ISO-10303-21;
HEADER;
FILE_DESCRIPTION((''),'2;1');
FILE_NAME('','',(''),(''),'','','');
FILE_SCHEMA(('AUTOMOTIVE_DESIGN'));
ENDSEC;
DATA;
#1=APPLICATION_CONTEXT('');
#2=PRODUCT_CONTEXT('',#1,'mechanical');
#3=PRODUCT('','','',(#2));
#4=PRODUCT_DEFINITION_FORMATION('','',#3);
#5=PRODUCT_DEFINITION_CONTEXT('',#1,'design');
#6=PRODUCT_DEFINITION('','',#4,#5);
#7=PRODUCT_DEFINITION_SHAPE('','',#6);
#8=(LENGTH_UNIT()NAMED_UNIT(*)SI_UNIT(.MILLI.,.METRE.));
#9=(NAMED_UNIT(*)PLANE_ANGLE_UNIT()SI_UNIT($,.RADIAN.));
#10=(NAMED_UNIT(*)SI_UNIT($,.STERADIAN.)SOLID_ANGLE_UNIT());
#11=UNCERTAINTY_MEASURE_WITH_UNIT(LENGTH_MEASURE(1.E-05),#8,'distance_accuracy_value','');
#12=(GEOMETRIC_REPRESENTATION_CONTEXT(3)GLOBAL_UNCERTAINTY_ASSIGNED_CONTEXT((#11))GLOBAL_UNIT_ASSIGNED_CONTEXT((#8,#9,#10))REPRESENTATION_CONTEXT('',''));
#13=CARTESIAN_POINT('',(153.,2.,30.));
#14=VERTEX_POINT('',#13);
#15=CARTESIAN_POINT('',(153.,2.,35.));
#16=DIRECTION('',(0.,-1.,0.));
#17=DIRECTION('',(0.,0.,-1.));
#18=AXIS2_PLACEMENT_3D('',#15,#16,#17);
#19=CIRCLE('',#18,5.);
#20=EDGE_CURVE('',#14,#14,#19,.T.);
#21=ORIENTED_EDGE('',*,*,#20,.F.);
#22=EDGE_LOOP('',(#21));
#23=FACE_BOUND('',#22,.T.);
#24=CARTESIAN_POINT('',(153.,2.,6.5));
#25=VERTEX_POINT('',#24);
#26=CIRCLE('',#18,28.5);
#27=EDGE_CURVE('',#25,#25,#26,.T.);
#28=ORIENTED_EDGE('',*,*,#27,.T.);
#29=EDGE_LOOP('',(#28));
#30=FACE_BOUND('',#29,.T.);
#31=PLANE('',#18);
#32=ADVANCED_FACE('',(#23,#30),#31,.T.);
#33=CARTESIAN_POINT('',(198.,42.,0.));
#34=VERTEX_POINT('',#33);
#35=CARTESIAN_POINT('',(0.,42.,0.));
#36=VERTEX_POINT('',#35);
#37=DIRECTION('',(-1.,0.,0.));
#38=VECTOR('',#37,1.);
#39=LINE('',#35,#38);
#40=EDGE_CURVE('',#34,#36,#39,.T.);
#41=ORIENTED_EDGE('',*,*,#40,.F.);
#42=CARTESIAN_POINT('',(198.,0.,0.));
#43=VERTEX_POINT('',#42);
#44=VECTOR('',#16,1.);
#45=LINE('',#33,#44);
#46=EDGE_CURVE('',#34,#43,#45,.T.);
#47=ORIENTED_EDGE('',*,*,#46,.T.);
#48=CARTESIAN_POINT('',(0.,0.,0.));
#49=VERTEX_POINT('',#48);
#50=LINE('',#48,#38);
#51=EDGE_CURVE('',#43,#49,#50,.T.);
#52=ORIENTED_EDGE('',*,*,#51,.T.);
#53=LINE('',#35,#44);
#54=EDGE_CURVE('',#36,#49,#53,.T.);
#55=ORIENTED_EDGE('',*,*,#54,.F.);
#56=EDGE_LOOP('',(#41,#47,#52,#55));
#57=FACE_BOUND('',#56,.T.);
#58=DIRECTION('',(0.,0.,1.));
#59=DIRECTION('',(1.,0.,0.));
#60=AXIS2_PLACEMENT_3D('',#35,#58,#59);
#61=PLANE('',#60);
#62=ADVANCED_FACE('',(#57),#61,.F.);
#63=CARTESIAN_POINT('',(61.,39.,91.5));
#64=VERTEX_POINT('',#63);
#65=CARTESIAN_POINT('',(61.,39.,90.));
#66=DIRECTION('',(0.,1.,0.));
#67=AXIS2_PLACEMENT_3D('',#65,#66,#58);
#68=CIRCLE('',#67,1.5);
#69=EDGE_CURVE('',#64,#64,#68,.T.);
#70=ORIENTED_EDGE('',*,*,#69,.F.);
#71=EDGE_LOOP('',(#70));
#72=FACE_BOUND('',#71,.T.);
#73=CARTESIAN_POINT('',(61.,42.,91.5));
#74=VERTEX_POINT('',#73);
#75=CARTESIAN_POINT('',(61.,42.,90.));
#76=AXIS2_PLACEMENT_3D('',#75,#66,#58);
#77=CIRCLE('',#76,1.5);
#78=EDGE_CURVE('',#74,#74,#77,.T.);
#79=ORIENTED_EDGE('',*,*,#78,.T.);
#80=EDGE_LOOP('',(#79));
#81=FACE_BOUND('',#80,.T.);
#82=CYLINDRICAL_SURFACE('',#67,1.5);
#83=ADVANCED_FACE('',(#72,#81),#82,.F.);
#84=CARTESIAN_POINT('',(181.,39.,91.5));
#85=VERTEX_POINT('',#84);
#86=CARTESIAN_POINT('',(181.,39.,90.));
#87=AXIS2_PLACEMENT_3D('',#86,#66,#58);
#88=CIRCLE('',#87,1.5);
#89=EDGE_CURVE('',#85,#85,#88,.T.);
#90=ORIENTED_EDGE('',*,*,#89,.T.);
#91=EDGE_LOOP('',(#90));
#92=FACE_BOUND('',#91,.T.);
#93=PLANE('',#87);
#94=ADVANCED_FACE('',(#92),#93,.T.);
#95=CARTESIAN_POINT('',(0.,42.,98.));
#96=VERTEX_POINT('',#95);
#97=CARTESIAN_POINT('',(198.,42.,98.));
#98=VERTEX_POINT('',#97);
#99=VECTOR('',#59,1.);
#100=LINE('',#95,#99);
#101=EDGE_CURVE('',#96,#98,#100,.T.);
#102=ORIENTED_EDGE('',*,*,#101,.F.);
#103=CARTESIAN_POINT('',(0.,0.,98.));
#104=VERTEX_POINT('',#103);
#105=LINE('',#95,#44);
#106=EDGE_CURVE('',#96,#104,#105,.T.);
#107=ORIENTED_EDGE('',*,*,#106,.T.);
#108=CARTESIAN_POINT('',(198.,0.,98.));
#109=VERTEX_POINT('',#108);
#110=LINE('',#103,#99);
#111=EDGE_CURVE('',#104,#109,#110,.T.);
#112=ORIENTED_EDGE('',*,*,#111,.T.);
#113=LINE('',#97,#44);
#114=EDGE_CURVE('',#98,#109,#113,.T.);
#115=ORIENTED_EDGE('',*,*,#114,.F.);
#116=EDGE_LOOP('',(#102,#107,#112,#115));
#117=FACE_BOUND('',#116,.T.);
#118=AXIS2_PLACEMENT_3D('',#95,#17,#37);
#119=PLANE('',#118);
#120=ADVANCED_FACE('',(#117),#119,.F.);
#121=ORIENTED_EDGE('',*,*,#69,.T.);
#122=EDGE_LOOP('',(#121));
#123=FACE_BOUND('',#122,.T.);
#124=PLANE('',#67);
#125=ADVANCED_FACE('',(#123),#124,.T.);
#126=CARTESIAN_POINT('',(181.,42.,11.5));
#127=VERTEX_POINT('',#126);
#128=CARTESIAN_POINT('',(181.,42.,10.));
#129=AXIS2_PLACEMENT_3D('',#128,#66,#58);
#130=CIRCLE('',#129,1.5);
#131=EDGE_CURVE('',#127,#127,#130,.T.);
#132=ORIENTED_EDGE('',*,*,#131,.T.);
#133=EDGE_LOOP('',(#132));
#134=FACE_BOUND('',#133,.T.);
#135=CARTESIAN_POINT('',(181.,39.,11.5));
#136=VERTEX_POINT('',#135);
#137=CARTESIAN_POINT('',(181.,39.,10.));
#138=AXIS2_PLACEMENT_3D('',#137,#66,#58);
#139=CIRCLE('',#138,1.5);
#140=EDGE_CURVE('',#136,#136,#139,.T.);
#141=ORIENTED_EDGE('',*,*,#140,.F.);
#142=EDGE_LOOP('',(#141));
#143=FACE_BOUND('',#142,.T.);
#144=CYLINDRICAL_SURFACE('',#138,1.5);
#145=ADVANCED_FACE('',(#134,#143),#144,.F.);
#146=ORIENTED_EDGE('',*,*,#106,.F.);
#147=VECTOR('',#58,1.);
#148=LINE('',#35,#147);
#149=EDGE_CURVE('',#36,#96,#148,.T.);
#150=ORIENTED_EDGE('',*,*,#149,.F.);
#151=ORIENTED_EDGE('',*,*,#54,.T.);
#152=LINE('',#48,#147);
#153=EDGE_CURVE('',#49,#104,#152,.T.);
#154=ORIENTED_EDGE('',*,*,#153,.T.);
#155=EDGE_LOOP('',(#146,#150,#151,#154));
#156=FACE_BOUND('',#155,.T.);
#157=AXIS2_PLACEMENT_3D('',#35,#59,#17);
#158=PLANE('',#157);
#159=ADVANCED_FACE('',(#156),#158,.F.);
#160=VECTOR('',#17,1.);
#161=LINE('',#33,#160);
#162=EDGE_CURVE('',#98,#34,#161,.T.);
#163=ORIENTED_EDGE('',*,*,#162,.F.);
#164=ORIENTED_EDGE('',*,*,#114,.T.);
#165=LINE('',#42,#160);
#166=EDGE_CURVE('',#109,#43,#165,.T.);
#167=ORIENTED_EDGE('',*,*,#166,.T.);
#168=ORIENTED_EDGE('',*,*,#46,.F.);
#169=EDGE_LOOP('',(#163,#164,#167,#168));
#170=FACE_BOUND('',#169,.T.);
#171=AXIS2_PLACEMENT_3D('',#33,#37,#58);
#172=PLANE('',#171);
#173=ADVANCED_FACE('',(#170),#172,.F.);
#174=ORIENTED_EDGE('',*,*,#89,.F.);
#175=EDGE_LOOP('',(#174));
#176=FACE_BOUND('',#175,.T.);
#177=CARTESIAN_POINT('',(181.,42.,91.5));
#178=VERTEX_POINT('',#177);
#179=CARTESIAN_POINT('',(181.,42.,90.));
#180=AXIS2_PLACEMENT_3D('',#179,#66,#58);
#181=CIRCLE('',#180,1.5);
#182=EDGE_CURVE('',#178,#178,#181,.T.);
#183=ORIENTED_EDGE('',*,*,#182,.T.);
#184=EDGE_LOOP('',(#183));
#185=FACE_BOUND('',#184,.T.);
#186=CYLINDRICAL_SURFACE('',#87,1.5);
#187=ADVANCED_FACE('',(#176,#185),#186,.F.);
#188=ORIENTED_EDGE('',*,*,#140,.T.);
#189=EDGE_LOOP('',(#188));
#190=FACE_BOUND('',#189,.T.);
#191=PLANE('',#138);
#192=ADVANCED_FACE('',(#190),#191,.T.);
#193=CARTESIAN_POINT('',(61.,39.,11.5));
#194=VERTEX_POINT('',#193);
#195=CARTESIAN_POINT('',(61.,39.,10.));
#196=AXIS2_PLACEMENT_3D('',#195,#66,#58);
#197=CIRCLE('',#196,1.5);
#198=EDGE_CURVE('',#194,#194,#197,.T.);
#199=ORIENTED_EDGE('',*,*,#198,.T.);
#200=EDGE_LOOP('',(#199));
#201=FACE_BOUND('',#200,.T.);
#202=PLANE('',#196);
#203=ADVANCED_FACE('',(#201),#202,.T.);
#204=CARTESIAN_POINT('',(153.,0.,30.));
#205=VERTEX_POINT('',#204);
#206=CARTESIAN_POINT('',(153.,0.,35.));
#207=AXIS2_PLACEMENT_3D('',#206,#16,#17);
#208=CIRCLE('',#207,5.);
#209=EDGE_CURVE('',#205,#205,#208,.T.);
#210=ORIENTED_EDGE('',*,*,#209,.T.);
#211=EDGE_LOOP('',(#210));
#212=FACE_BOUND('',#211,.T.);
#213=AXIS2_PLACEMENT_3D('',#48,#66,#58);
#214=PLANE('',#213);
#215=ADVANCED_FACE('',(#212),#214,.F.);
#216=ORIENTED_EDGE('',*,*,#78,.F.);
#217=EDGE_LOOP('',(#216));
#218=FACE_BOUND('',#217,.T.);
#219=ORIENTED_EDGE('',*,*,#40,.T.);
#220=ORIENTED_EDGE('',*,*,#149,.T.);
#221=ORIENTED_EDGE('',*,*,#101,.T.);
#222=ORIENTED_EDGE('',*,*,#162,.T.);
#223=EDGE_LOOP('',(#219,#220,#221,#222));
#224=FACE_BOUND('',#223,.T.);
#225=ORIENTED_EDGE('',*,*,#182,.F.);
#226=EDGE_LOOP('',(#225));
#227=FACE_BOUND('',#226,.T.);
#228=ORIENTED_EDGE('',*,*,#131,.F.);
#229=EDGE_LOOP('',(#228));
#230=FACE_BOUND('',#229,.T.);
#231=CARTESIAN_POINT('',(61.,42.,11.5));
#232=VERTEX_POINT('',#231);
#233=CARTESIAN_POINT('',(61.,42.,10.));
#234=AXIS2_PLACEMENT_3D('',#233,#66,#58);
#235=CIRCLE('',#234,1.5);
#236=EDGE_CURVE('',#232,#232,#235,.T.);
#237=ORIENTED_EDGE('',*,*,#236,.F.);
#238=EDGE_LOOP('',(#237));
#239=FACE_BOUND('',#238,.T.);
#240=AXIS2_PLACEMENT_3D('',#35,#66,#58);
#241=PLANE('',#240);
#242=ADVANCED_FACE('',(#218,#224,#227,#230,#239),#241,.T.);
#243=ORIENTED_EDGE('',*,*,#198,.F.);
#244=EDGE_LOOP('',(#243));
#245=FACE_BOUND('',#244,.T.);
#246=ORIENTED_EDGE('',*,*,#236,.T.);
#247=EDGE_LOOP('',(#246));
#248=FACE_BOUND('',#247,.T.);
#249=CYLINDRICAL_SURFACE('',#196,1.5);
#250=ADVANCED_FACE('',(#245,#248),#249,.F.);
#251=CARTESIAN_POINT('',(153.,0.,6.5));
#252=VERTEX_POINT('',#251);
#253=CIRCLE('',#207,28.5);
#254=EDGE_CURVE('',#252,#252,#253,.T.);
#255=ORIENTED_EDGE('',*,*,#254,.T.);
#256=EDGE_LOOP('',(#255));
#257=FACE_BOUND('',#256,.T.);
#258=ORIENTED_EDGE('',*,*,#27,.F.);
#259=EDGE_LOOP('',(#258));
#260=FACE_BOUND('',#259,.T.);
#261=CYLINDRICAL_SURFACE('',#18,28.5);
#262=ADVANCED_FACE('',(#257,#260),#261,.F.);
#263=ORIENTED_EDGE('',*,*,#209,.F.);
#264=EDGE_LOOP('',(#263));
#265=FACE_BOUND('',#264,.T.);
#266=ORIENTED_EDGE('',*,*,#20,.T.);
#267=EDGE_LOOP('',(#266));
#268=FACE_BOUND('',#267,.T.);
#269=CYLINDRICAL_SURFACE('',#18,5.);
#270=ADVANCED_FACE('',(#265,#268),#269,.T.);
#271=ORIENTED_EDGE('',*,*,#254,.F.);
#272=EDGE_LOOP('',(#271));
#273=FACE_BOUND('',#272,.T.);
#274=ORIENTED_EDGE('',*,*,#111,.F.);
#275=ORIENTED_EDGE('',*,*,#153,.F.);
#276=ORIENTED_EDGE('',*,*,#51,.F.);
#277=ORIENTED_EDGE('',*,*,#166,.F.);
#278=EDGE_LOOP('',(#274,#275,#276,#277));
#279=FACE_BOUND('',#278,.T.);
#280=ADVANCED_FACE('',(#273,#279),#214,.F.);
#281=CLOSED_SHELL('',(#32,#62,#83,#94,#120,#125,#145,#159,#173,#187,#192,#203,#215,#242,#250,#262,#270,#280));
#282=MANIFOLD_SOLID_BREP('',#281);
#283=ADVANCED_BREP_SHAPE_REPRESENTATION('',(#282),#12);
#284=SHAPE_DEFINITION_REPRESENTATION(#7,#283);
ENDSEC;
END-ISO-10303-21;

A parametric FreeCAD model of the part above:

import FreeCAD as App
import Part
import Sketcher


def add_polygon(sketch, points):
    """Adds a closed chain of lines whose ends are joined by coincident constraints."""
    first, n = sketch.GeometryCount, len(points)
    for a, b in zip(points, points[1:] + points[:1]):
        sketch.addGeometry(Part.LineSegment(App.Vector(*a, 0), App.Vector(*b, 0)), False)
    for i in range(n):
        sketch.addConstraint(Sketcher.Constraint("Coincident", first + i, 2, first + (i + 1) % n, 1))

doc = App.newDocument("Part")
body = doc.addObject("PartDesign::Body", "Body")

sketch1 = body.newObject("Sketcher::SketchObject", "Sketch")
sketch1.AttachmentSupport = (doc.getObject("XZ_Plane"), [""])
sketch1.MapMode = "FlatFace"
add_polygon(sketch1, [(0, 0), (0, 98), (198, 98), (198, 0)])
sketch1.addConstraint(Sketcher.Constraint("Vertical", 0))
sketch1.addConstraint(Sketcher.Constraint("Horizontal", 1))
sketch1.addConstraint(Sketcher.Constraint("Vertical", 2))
sketch1.addConstraint(Sketcher.Constraint("Horizontal", 3))
sketch1.addConstraint(Sketcher.Constraint("Coincident", 3, 2, -1, 1))
sketch1.addConstraint(Sketcher.Constraint("DistanceX", 1, 1, 1, 2, 198.0))
sketch1.addConstraint(Sketcher.Constraint("DistanceY", 0, 1, 0, 2, 98.0))
pad1 = body.newObject("PartDesign::Pad", "Pad")
pad1.Profile = sketch1
pad1.Length = 42
pad1.Reversed = True

sketch2 = body.newObject("Sketcher::SketchObject", "Sketch001")
sketch2.AttachmentSupport = (doc.getObject("XZ_Plane"), [""])
sketch2.MapMode = "FlatFace"
sketch2.AttachmentOffset = App.Placement(App.Vector(0, 0, -42), App.Rotation())
sketch2.addGeometry(Part.Circle(App.Vector(61, 10, 0), App.Vector(0, 0, 1), 1.5), False)
sketch2.addGeometry(Part.Circle(App.Vector(181, 10, 0), App.Vector(0, 0, 1), 1.5), False)
sketch2.addGeometry(Part.Circle(App.Vector(181, 90, 0), App.Vector(0, 0, 1), 1.5), False)
sketch2.addGeometry(Part.Circle(App.Vector(61, 90, 0), App.Vector(0, 0, 1), 1.5), False)
sketch2.addConstraint(Sketcher.Constraint("Equal", 0, 1))
sketch2.addConstraint(Sketcher.Constraint("Equal", 1, 2))
sketch2.addConstraint(Sketcher.Constraint("Equal", 2, 3))
sketch2.addConstraint(Sketcher.Constraint("Horizontal", 0, 3, 1, 3))
sketch2.addConstraint(Sketcher.Constraint("Horizontal", 2, 3, 3, 3))
sketch2.addConstraint(Sketcher.Constraint("Vertical", 1, 3, 2, 3))
sketch2.addConstraint(Sketcher.Constraint("Vertical", 0, 3, 3, 3))
sketch2.addConstraint(Sketcher.Constraint("Diameter", 0, 3.0))
sketch2.addConstraint(Sketcher.Constraint("DistanceX", -1, 1, 0, 3, 61.0))
sketch2.addConstraint(Sketcher.Constraint("DistanceY", -1, 1, 0, 3, 10.0))
sketch2.addConstraint(Sketcher.Constraint("DistanceX", -1, 1, 1, 3, 181.0))
sketch2.addConstraint(Sketcher.Constraint("DistanceY", -1, 1, 2, 3, 90.0))
pocket1 = body.newObject("PartDesign::Pocket", "Pocket")
pocket1.Profile = sketch2
pocket1.Length = 3
pocket1.Reversed = True

sketch3 = body.newObject("Sketcher::SketchObject", "Sketch002")
sketch3.AttachmentSupport = (doc.getObject("XZ_Plane"), [""])
sketch3.MapMode = "FlatFace"
sketch3.addGeometry(Part.Circle(App.Vector(153, 35, 0), App.Vector(0, 0, 1), 28.5), False)
sketch3.addGeometry(Part.Circle(App.Vector(153, 35, 0), App.Vector(0, 0, 1), 5), False)
sketch3.addConstraint(Sketcher.Constraint("Coincident", 1, 3, 0, 3))
sketch3.addConstraint(Sketcher.Constraint("Diameter", 0, 57.0))
sketch3.addConstraint(Sketcher.Constraint("Diameter", 1, 10.0))
sketch3.addConstraint(Sketcher.Constraint("DistanceX", -1, 1, 0, 3, 153.0))
sketch3.addConstraint(Sketcher.Constraint("DistanceY", -1, 1, 0, 3, 35.0))
pocket2 = body.newObject("PartDesign::Pocket", "Pocket001")
pocket2.Profile = sketch3
pocket2.Length = 2

doc.recompute()
